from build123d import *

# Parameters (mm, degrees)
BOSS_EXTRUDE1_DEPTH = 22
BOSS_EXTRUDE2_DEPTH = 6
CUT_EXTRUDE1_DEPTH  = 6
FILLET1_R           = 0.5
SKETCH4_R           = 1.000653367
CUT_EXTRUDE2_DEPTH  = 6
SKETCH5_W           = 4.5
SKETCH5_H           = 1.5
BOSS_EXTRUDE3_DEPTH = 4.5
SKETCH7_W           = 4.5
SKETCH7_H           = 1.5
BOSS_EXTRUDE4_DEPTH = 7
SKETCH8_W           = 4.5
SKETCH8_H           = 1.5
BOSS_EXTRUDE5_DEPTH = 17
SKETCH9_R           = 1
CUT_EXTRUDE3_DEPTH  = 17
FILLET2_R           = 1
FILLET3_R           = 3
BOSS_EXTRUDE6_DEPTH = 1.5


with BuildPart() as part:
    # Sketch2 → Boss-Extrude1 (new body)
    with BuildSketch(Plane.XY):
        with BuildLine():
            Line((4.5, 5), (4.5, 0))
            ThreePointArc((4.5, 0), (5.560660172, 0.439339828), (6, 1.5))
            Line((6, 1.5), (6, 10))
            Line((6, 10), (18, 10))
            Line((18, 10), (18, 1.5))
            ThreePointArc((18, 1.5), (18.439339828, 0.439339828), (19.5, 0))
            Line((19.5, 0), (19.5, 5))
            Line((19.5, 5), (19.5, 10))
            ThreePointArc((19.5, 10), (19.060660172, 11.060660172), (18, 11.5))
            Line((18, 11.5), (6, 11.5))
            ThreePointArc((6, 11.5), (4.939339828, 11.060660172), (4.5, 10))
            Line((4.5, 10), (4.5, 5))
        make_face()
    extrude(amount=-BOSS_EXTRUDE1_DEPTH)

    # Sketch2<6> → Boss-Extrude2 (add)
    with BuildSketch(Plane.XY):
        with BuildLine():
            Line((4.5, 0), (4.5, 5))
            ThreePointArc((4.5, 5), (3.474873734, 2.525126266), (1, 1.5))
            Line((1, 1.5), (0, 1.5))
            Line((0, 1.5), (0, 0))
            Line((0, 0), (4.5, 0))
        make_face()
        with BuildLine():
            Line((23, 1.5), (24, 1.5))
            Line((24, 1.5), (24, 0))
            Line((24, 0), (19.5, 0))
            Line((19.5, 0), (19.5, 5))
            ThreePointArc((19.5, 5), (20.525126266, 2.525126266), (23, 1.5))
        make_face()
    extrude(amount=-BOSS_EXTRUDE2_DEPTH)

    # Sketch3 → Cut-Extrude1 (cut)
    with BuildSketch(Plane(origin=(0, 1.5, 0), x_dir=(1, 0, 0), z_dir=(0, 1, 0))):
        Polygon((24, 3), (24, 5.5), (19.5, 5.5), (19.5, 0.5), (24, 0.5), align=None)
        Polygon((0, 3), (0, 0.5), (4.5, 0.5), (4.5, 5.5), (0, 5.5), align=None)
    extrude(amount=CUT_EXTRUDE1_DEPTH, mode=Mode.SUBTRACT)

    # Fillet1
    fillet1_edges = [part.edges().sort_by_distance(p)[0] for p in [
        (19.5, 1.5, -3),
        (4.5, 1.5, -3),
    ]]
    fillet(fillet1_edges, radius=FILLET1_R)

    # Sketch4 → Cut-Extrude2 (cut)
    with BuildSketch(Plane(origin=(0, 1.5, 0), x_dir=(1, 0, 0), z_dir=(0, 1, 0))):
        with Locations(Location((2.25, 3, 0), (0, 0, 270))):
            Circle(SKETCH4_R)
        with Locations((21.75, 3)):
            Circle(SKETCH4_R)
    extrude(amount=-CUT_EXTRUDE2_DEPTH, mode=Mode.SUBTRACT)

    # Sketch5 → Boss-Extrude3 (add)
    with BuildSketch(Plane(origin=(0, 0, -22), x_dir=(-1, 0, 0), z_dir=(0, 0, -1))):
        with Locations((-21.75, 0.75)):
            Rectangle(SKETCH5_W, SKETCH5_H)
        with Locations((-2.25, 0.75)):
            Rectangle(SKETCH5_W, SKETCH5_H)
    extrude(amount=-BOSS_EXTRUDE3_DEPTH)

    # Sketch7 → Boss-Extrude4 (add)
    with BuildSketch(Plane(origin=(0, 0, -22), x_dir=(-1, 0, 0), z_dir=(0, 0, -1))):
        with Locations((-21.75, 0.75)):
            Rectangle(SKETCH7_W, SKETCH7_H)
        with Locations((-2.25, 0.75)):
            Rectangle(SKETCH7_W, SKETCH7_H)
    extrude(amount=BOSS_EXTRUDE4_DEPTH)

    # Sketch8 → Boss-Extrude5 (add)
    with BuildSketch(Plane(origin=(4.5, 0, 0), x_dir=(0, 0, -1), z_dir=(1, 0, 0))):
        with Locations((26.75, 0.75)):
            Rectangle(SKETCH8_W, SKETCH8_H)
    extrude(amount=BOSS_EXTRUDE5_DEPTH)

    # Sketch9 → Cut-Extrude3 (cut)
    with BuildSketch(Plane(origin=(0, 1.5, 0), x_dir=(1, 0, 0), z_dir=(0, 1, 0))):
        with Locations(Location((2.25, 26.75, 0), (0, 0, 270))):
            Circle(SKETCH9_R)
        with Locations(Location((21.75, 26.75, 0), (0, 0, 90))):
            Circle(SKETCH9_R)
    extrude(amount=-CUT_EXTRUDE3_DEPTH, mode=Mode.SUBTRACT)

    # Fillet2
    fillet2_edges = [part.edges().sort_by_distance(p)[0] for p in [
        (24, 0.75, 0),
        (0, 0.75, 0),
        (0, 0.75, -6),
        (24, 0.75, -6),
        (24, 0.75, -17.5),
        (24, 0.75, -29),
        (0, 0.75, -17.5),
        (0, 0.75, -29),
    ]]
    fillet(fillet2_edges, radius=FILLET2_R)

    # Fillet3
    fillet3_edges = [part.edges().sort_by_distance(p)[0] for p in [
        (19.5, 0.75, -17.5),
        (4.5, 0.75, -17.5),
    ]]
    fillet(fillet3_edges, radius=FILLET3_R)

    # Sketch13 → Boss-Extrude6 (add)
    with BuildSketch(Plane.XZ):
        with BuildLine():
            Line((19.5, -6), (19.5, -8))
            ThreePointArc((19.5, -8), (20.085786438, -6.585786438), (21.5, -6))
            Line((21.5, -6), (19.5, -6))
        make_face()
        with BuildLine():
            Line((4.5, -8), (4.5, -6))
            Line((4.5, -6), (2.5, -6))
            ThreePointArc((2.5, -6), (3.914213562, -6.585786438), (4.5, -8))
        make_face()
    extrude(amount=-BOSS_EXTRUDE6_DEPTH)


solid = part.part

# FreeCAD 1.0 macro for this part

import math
import FreeCAD as App
import Part
import Sketcher
Q = App.Units.Quantity


def edges_at(feature, points):
    """Names of the edges that pass closest to the given points."""
    edges = feature.Shape.Edges
    near = lambda p: min(range(len(edges)), key=lambda i: edges[i].distToShape(Part.Vertex(*p))[0])
    return sorted({f"Edge{near(p) + 1}" for p in points})


def add_polygon(sketch, points):
    """Adds a closed chain of lines whose ends are joined by coincident constraints."""
    first, n = sketch.GeometryCount, len(points)
    for a, b in zip(points, points[1:] + points[:1]):
        sketch.addGeometry(Part.LineSegment(App.Vector(*a, 0), App.Vector(*b, 0)), False)
    for i in range(n):
        sketch.addConstraint(Sketcher.Constraint("Coincident", first + i, 2, first + (i + 1) % n, 1))

doc = App.newDocument("Part")
body = doc.addObject("PartDesign::Body", "Body")

# Sketch on XY plane
sketch1 = body.newObject("Sketcher::SketchObject", "Sketch")
sketch1.AttachmentSupport = (doc.getObject("XY_Plane"), [""])
sketch1.MapMode = "FlatFace"
sketch1.addGeometry(Part.ArcOfCircle(Part.Circle(App.Vector(4.5, 1.5, 0), App.Vector(0, 0, 1), 1.5), math.radians(-90), math.radians(0)), False)
sketch1.addGeometry(Part.LineSegment(App.Vector(6, 1.5, 0), App.Vector(6, 10, 0)), False)
sketch1.addGeometry(Part.LineSegment(App.Vector(6, 10, 0), App.Vector(18, 10, 0)), False)
sketch1.addGeometry(Part.LineSegment(App.Vector(18, 10, 0), App.Vector(18, 1.5, 0)), False)
sketch1.addGeometry(Part.ArcOfCircle(Part.Circle(App.Vector(19.5, 1.5, 0), App.Vector(0, 0, 1), 1.5), math.radians(180), math.radians(270)), False)
sketch1.addGeometry(Part.LineSegment(App.Vector(19.5, 0, 0), App.Vector(19.5, 10, 0)), False)
sketch1.addGeometry(Part.ArcOfCircle(Part.Circle(App.Vector(18, 10, 0), App.Vector(0, 0, 1), 1.5), math.radians(0), math.radians(90)), False)
sketch1.addGeometry(Part.LineSegment(App.Vector(18, 11.5, 0), App.Vector(6, 11.5, 0)), False)
sketch1.addGeometry(Part.ArcOfCircle(Part.Circle(App.Vector(6, 10, 0), App.Vector(0, 0, 1), 1.5), math.radians(90), math.radians(180)), False)
sketch1.addGeometry(Part.LineSegment(App.Vector(4.5, 10, 0), App.Vector(4.5, 0, 0)), False)
sketch1.addConstraint(Sketcher.Constraint("Tangent", 0, 2, 1, 1))
sketch1.addConstraint(Sketcher.Constraint("Coincident", 1, 2, 2, 1))
sketch1.addConstraint(Sketcher.Constraint("Coincident", 2, 2, 3, 1))
sketch1.addConstraint(Sketcher.Constraint("Tangent", 3, 2, 4, 1))
sketch1.addConstraint(Sketcher.Constraint("Coincident", 4, 2, 5, 1))
sketch1.addConstraint(Sketcher.Constraint("Tangent", 5, 2, 6, 1))
sketch1.addConstraint(Sketcher.Constraint("Tangent", 6, 2, 7, 1))
sketch1.addConstraint(Sketcher.Constraint("Tangent", 7, 2, 8, 1))
sketch1.addConstraint(Sketcher.Constraint("Tangent", 8, 2, 9, 1))
sketch1.addConstraint(Sketcher.Constraint("Coincident", 9, 2, 0, 1))
sketch1.addConstraint(Sketcher.Constraint("Vertical", 1))
sketch1.addConstraint(Sketcher.Constraint("Horizontal", 2))
sketch1.addConstraint(Sketcher.Constraint("Vertical", 3))
sketch1.addConstraint(Sketcher.Constraint("Vertical", 5))
sketch1.addConstraint(Sketcher.Constraint("Horizontal", 7))
sketch1.addConstraint(Sketcher.Constraint("Vertical", 9))
sketch1.addConstraint(Sketcher.Constraint("Coincident", 1, 2, 8, 3))
sketch1.addConstraint(Sketcher.Constraint("Coincident", 2, 2, 6, 3))
sketch1.addConstraint(Sketcher.Constraint("Equal", 0, 4))
sketch1.addConstraint(Sketcher.Constraint("Equal", 4, 6))
sketch1.addConstraint(Sketcher.Constraint("PointOnObject", 4, 2, -1))
sketch1.addConstraint(Sketcher.Constraint("PointOnObject", 9, 2, -1))
sketch1.addConstraint(Sketcher.Constraint("Radius", 0, Q("1.5 mm")))
sketch1.addConstraint(Sketcher.Constraint("DistanceX", 2, 1, 2, 2, Q("12 mm")))
sketch1.addConstraint(Sketcher.Constraint("DistanceY", 5, 1, 5, 2, Q("10 mm")))
sketch1.addConstraint(Sketcher.Constraint("DistanceX", -1, 1, 6, 3, Q("18 mm")))
pad1 = body.newObject("PartDesign::Pad", "Pad")
pad1.Profile = sketch1
pad1.Length = 22
pad1.Reversed = True

# Sketch on XY plane
sketch2 = body.newObject("Sketcher::SketchObject", "Sketch001")
sketch2.AttachmentSupport = (doc.getObject("XY_Plane"), [""])
sketch2.MapMode = "FlatFace"
sketch2.addGeometry(Part.LineSegment(App.Vector(4.5, 0, 0), App.Vector(4.5, 5, 0)), False)
sketch2.addGeometry(Part.ArcOfCircle(Part.Circle(App.Vector(1, 5, 0), App.Vector(0, 0, 1), 3.5), math.radians(-90), math.radians(0)), False)
sketch2.addGeometry(Part.LineSegment(App.Vector(1, 1.5, 0), App.Vector(0, 1.5, 0)), False)
sketch2.addGeometry(Part.LineSegment(App.Vector(0, 1.5, 0), App.Vector(0, 0, 0)), False)
sketch2.addGeometry(Part.LineSegment(App.Vector(0, 0, 0), App.Vector(4.5, 0, 0)), False)
sketch2.addGeometry(Part.LineSegment(App.Vector(24, 1.5, 0), App.Vector(23, 1.5, 0)), False)
sketch2.addGeometry(Part.ArcOfCircle(Part.Circle(App.Vector(23, 5, 0), App.Vector(0, 0, 1), 3.5), math.radians(-180), math.radians(-90)), False)
sketch2.addGeometry(Part.LineSegment(App.Vector(19.5, 5, 0), App.Vector(19.5, 0, 0)), False)
sketch2.addGeometry(Part.LineSegment(App.Vector(19.5, 0, 0), App.Vector(24, 0, 0)), False)
sketch2.addGeometry(Part.LineSegment(App.Vector(24, 0, 0), App.Vector(24, 1.5, 0)), False)
sketch2.addConstraint(Sketcher.Constraint("Tangent", 0, 2, 1, 2))
sketch2.addConstraint(Sketcher.Constraint("Tangent", 1, 1, 2, 1))
sketch2.addConstraint(Sketcher.Constraint("Coincident", 2, 2, 3, 1))
sketch2.addConstraint(Sketcher.Constraint("Coincident", 3, 2, 4, 1))
sketch2.addConstraint(Sketcher.Constraint("Coincident", 4, 2, 0, 1))
sketch2.addConstraint(Sketcher.Constraint("Tangent", 5, 2, 6, 2))
sketch2.addConstraint(Sketcher.Constraint("Tangent", 6, 1, 7, 1))
sketch2.addConstraint(Sketcher.Constraint("Coincident", 7, 2, 8, 1))
sketch2.addConstraint(Sketcher.Constraint("Coincident", 8, 2, 9, 1))
sketch2.addConstraint(Sketcher.Constraint("Coincident", 9, 2, 5, 1))
sketch2.addConstraint(Sketcher.Constraint("Vertical", 0))
sketch2.addConstraint(Sketcher.Constraint("Horizontal", 2))
sketch2.addConstraint(Sketcher.Constraint("Vertical", 3))
sketch2.addConstraint(Sketcher.Constraint("Horizontal", 4))
sketch2.addConstraint(Sketcher.Constraint("Horizontal", 5))
sketch2.addConstraint(Sketcher.Constraint("Vertical", 7))
sketch2.addConstraint(Sketcher.Constraint("Horizontal", 8))
sketch2.addConstraint(Sketcher.Constraint("Vertical", 9))
sketch2.addConstraint(Sketcher.Constraint("Coincident", 3, 2, -1, 1))
sketch2.addConstraint(Sketcher.Constraint("Equal", 1, 6))
sketch2.addConstraint(Sketcher.Constraint("PointOnObject", 7, 2, -1))
sketch2.addConstraint(Sketcher.Constraint("Horizontal", 1, 3, 6, 3))
sketch2.addConstraint(Sketcher.Constraint("Equal", 2, 5))
sketch2.addConstraint(Sketcher.Constraint("Radius", 1, Q("3.5 mm")))
sketch2.addConstraint(Sketcher.Constraint("DistanceX", 2, 2, 2, 1, Q("1 mm")))
sketch2.addConstraint(Sketcher.Constraint("DistanceY", 0, 1, 0, 2, Q("5 mm")))
sketch2.addConstraint(Sketcher.Constraint("DistanceX", -1, 1, 6, 3, Q("23 mm")))
pad2 = body.newObject("PartDesign::Pad", "Pad001")
pad2.Profile = sketch2
pad2.Length = 6
pad2.Reversed = True

# Sketch on XZ plane
sketch3 = body.newObject("Sketcher::SketchObject", "Sketch002")
sketch3.AttachmentSupport = (doc.getObject("XZ_Plane"), [""])
sketch3.MapMode = "FlatFace"
sketch3.AttachmentOffset = App.Placement(App.Vector(0, 0, -1.5), App.Rotation())
add_polygon(sketch3, [(24, -5.5), (19.5, -5.5), (19.5, -0.5), (24, -0.5)])  # lines 0-3
add_polygon(sketch3, [(0, -0.5), (4.5, -0.5), (4.5, -5.5), (0, -5.5)])  # lines 4-7
sketch3.addConstraint(Sketcher.Constraint("Horizontal", 0))
sketch3.addConstraint(Sketcher.Constraint("Vertical", 1))
sketch3.addConstraint(Sketcher.Constraint("Horizontal", 2))
sketch3.addConstraint(Sketcher.Constraint("Vertical", 3))
sketch3.addConstraint(Sketcher.Constraint("Horizontal", 4))
sketch3.addConstraint(Sketcher.Constraint("Vertical", 5))
sketch3.addConstraint(Sketcher.Constraint("Horizontal", 6))
sketch3.addConstraint(Sketcher.Constraint("Vertical", 7))
sketch3.addConstraint(Sketcher.Constraint("PointOnObject", 6, 2, -2))
sketch3.addConstraint(Sketcher.Constraint("Horizontal", 2, 2, 4, 2))
sketch3.addConstraint(Sketcher.Constraint("Horizontal", 3, 2, 5, 2))
sketch3.addConstraint(Sketcher.Constraint("Equal", 2, 4))
sketch3.addConstraint(Sketcher.Constraint("DistanceY", 1, 1, 1, 2, Q("5 mm")))
sketch3.addConstraint(Sketcher.Constraint("DistanceX", 0, 2, 0, 1, Q("4.5 mm")))
sketch3.addConstraint(Sketcher.Constraint("DistanceX", -1, 1, 2, 2, Q("24 mm")))
sketch3.addConstraint(Sketcher.Constraint("DistanceY", 0, 2, -1, 1, Q("5.5 mm")))
pocket1 = body.newObject("PartDesign::Pocket", "Pocket")
pocket1.Profile = sketch3
pocket1.Length = 6
doc.recompute()

fillet = body.newObject("PartDesign::Fillet", "Fillet")
fillet.Base = (pocket1, edges_at(pocket1, [(19.5, 1.5, -3), (4.5, 1.5, -3)]))
fillet.Radius = 0.5

# Sketch on XZ plane
sketch4 = body.newObject("Sketcher::SketchObject", "Sketch003")
sketch4.AttachmentSupport = (doc.getObject("XZ_Plane"), [""])
sketch4.MapMode = "FlatFace"
sketch4.AttachmentOffset = App.Placement(App.Vector(0, 0, -1.5), App.Rotation())
sketch4.addGeometry(Part.Circle(App.Vector(2.2, -3, 0), App.Vector(0, 0, 1), 1), False)
sketch4.addGeometry(Part.Circle(App.Vector(21.8, -3, 0), App.Vector(0, 0, 1), 1), False)
sketch4.addConstraint(Sketcher.Constraint("Equal", 0, 1))
sketch4.addConstraint(Sketcher.Constraint("Horizontal", 0, 3, 1, 3))
sketch4.addConstraint(Sketcher.Constraint("DistanceY", 0, 3, -1, 1, Q("3 mm")))
sketch4.addConstraint(Sketcher.Constraint("DistanceX", 0, 3, 1, 3, Q("19.5 mm")))
sketch4.addConstraint(Sketcher.Constraint("DistanceX", -1, 1, 0, 3, Q("2.25 mm")))
sketch4.addConstraint(Sketcher.Constraint("Diameter", 0, Q("2.001307 mm")))
pocket2 = body.newObject("PartDesign::Pocket", "Pocket001")
pocket2.Profile = sketch4
pocket2.Length = 6
pocket2.Reversed = True

# Sketch on XY plane
sketch5 = body.newObject("Sketcher::SketchObject", "Sketch004")
sketch5.AttachmentSupport = (doc.getObject("XY_Plane"), [""])
sketch5.MapMode = "FlatFace"
sketch5.AttachmentOffset = App.Placement(App.Vector(0, 0, -22), App.Rotation())
add_polygon(sketch5, [(24, 1.5), (24, 0), (19.5, 0), (19.5, 1.5)])  # lines 0-3
add_polygon(sketch5, [(4.5, 1.5), (4.5, 0), (0, 0), (0, 1.5)])  # lines 4-7
sketch5.addConstraint(Sketcher.Constraint("Vertical", 0))
sketch5.addConstraint(Sketcher.Constraint("Horizontal", 1))
sketch5.addConstraint(Sketcher.Constraint("Vertical", 2))
sketch5.addConstraint(Sketcher.Constraint("Horizontal", 3))
sketch5.addConstraint(Sketcher.Constraint("Vertical", 4))
sketch5.addConstraint(Sketcher.Constraint("Horizontal", 5))
sketch5.addConstraint(Sketcher.Constraint("Vertical", 6))
sketch5.addConstraint(Sketcher.Constraint("Horizontal", 7))
sketch5.addConstraint(Sketcher.Constraint("Coincident", 5, 2, -1, 1))
sketch5.addConstraint(Sketcher.Constraint("PointOnObject", 0, 2, -1))
sketch5.addConstraint(Sketcher.Constraint("Horizontal", 3, 2, 6, 2))
sketch5.addConstraint(Sketcher.Constraint("Equal", 3, 5))
sketch5.addConstraint(Sketcher.Constraint("DistanceX", 1, 2, 1, 1, Q("4.5 mm")))
sketch5.addConstraint(Sketcher.Constraint("DistanceY", 0, 2, 0, 1, Q("1.5 mm")))
sketch5.addConstraint(Sketcher.Constraint("DistanceX", -1, 1, 0, 2, Q("24 mm")))
pad3 = body.newObject("PartDesign::Pad", "Pad002")
pad3.Profile = sketch5
pad3.Length = 4.5

# Sketch on XY plane
sketch6 = body.newObject("Sketcher::SketchObject", "Sketch005")
sketch6.AttachmentSupport = (doc.getObject("XY_Plane"), [""])
sketch6.MapMode = "FlatFace"
sketch6.AttachmentOffset = App.Placement(App.Vector(0, 0, -22), App.Rotation())
add_polygon(sketch6, [(24, 1.5), (24, 0), (19.5, 0), (19.5, 1.5)])  # lines 0-3
add_polygon(sketch6, [(4.5, 1.5), (4.5, 0), (0, 0), (0, 1.5)])  # lines 4-7
sketch6.addConstraint(Sketcher.Constraint("Vertical", 0))
sketch6.addConstraint(Sketcher.Constraint("Horizontal", 1))
sketch6.addConstraint(Sketcher.Constraint("Vertical", 2))
sketch6.addConstraint(Sketcher.Constraint("Horizontal", 3))
sketch6.addConstraint(Sketcher.Constraint("Vertical", 4))
sketch6.addConstraint(Sketcher.Constraint("Horizontal", 5))
sketch6.addConstraint(Sketcher.Constraint("Vertical", 6))
sketch6.addConstraint(Sketcher.Constraint("Horizontal", 7))
sketch6.addConstraint(Sketcher.Constraint("Coincident", 5, 2, -1, 1))
sketch6.addConstraint(Sketcher.Constraint("PointOnObject", 0, 2, -1))
sketch6.addConstraint(Sketcher.Constraint("Horizontal", 3, 2, 6, 2))
sketch6.addConstraint(Sketcher.Constraint("Equal", 3, 5))
sketch6.addConstraint(Sketcher.Constraint("DistanceX", 1, 2, 1, 1, Q("4.5 mm")))
sketch6.addConstraint(Sketcher.Constraint("DistanceY", 0, 2, 0, 1, Q("1.5 mm")))
sketch6.addConstraint(Sketcher.Constraint("DistanceX", -1, 1, 0, 2, Q("24 mm")))
pad4 = body.newObject("PartDesign::Pad", "Pad003")
pad4.Profile = sketch6
pad4.Length = 7
pad4.Reversed = True

# Sketch on YZ plane
sketch7 = body.newObject("Sketcher::SketchObject", "Sketch006")
sketch7.AttachmentSupport = (doc.getObject("YZ_Plane"), [""])
sketch7.MapMode = "FlatFace"
sketch7.AttachmentOffset = App.Placement(App.Vector(0, 0, 4.5), App.Rotation())
add_polygon(sketch7, [(1.5, -24.5), (0, -24.5), (0, -29), (1.5, -29)])  # lines 0-3
sketch7.addConstraint(Sketcher.Constraint("Horizontal", 0))
sketch7.addConstraint(Sketcher.Constraint("Vertical", 1))
sketch7.addConstraint(Sketcher.Constraint("Horizontal", 2))
sketch7.addConstraint(Sketcher.Constraint("Vertical", 3))
sketch7.addConstraint(Sketcher.Constraint("PointOnObject", 0, 2, -2))
sketch7.addConstraint(Sketcher.Constraint("DistanceX", 0, 2, 0, 1, Q("1.5 mm")))
sketch7.addConstraint(Sketcher.Constraint("DistanceY", 1, 2, 1, 1, Q("4.5 mm")))
sketch7.addConstraint(Sketcher.Constraint("DistanceY", 1, 2, -1, 1, Q("29 mm")))
pad5 = body.newObject("PartDesign::Pad", "Pad004")
pad5.Profile = sketch7
pad5.Length = 17

# Sketch on XZ plane
sketch8 = body.newObject("Sketcher::SketchObject", "Sketch007")
sketch8.AttachmentSupport = (doc.getObject("XZ_Plane"), [""])
sketch8.MapMode = "FlatFace"
sketch8.AttachmentOffset = App.Placement(App.Vector(0, 0, -1.5), App.Rotation())
sketch8.addGeometry(Part.Circle(App.Vector(2.2, -26.8, 0), App.Vector(0, 0, 1), 1), False)
sketch8.addGeometry(Part.Circle(App.Vector(21.8, -26.8, 0), App.Vector(0, 0, 1), 1), False)
sketch8.addConstraint(Sketcher.Constraint("Equal", 0, 1))
sketch8.addConstraint(Sketcher.Constraint("Horizontal", 0, 3, 1, 3))
sketch8.addConstraint(Sketcher.Constraint("Diameter", 0, Q("2 mm")))
sketch8.addConstraint(Sketcher.Constraint("DistanceX", 0, 3, 1, 3, Q("19.5 mm")))
sketch8.addConstraint(Sketcher.Constraint("DistanceX", -1, 1, 0, 3, Q("2.25 mm")))
sketch8.addConstraint(Sketcher.Constraint("DistanceY", 0, 3, -1, 1, Q("26.75 mm")))
pocket3 = body.newObject("PartDesign::Pocket", "Pocket002")
pocket3.Profile = sketch8
pocket3.Length = 17
pocket3.Reversed = True
doc.recompute()

fillet2 = body.newObject("PartDesign::Fillet", "Fillet001")
fillet2.Base = (pocket3, edges_at(pocket3, [
    (24, 0.75, 0),
    (0, 0.75, 0),
    (0, 0.75, -6),
    (24, 0.75, -6),
    (24, 0.75, -17.5),
    (24, 0.75, -29),
    (0, 0.75, -17.5),
    (0, 0.75, -29),
]))
fillet2.Radius = 1
doc.recompute()

fillet3 = body.newObject("PartDesign::Fillet", "Fillet002")
fillet3.Base = (fillet2, edges_at(fillet2, [(19.5, 0.75, -17.5), (4.5, 0.75, -17.5)]))
fillet3.Radius = 3

# Sketch on XZ plane
sketch9 = body.newObject("Sketcher::SketchObject", "Sketch008")
sketch9.AttachmentSupport = (doc.getObject("XZ_Plane"), [""])
sketch9.MapMode = "FlatFace"
sketch9.addGeometry(Part.LineSegment(App.Vector(19.5, -6, 0), App.Vector(19.5, -8, 0)), False)
sketch9.addGeometry(Part.ArcOfCircle(Part.Circle(App.Vector(21.5, -8, 0), App.Vector(0, 0, 1), 2), math.radians(90), math.radians(180)), False)
sketch9.addGeometry(Part.LineSegment(App.Vector(21.5, -6, 0), App.Vector(19.5, -6, 0)), False)
sketch9.addGeometry(Part.LineSegment(App.Vector(4.5, -8, 0), App.Vector(4.5, -6, 0)), False)
sketch9.addGeometry(Part.LineSegment(App.Vector(4.5, -6, 0), App.Vector(2.5, -6, 0)), False)
sketch9.addGeometry(Part.ArcOfCircle(Part.Circle(App.Vector(2.5, -8, 0), App.Vector(0, 0, 1), 2), math.radians(0), math.radians(90)), False)
sketch9.addConstraint(Sketcher.Constraint("Tangent", 0, 2, 1, 2))
sketch9.addConstraint(Sketcher.Constraint("Tangent", 1, 1, 2, 1))
sketch9.addConstraint(Sketcher.Constraint("Coincident", 2, 2, 0, 1))
sketch9.addConstraint(Sketcher.Constraint("Coincident", 3, 2, 4, 1))
sketch9.addConstraint(Sketcher.Constraint("Tangent", 4, 2, 5, 2))
sketch9.addConstraint(Sketcher.Constraint("Tangent", 5, 1, 3, 1))
sketch9.addConstraint(Sketcher.Constraint("Vertical", 0))
sketch9.addConstraint(Sketcher.Constraint("Horizontal", 2))
sketch9.addConstraint(Sketcher.Constraint("Vertical", 3))
sketch9.addConstraint(Sketcher.Constraint("Horizontal", 4))
sketch9.addConstraint(Sketcher.Constraint("Equal", 1, 5))
sketch9.addConstraint(Sketcher.Constraint("Horizontal", 1, 3, 5, 3))
sketch9.addConstraint(Sketcher.Constraint("Radius", 1, Q("2 mm")))
sketch9.addConstraint(Sketcher.Constraint("DistanceY", 1, 3, -1, 1, Q("8 mm")))
sketch9.addConstraint(Sketcher.Constraint("DistanceX", 5, 3, 1, 3, Q("19 mm")))
sketch9.addConstraint(Sketcher.Constraint("DistanceX", -1, 1, 1, 3, Q("21.5 mm")))
pad6 = body.newObject("PartDesign::Pad", "Pad005")
pad6.Profile = sketch9
pad6.Length = 1.5
pad6.Reversed = True

doc.recompute()
